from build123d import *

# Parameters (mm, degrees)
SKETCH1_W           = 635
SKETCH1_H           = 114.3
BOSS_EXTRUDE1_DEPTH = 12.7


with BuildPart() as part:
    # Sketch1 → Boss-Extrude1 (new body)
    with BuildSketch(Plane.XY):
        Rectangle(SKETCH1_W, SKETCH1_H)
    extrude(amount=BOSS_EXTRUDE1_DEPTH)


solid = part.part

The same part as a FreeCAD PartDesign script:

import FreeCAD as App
import Part
import Sketcher
from FreeCAD import Vector
Q = App.Units.Quantity


def add_polygon(sketch, points):
    """Adds a closed chain of lines whose ends are joined by coincident constraints."""
    first, n = sketch.GeometryCount, len(points)
    for a, b in zip(points, points[1:] + points[:1]):
        sketch.addGeometry(Part.LineSegment(App.Vector(*a, 0), App.Vector(*b, 0)), False)
    for i in range(n):
        sketch.addConstraint(Sketcher.Constraint("Coincident", first + i, 2, first + (i + 1) % n, 1))

doc = App.newDocument("Part")
body = doc.addObject("PartDesign::Body", "Body")

# Sketch on XY plane
sketch1 = doc.addObject("Sketcher::SketchObject", "Sketch")
body.addObject(sketch1)
sketch1.AttachmentSupport = (doc.XY_Plane, [""])
sketch1.MapMode = "FlatFace"
add_polygon(sketch1, [(-318, 57), (-318, -57), (318, -57), (318, 57)])  # lines 0-3
sketch1.addConstraint(Sketcher.Constraint("Vertical", 0))
sketch1.addConstraint(Sketcher.Constraint("Horizontal", 1))
sketch1.addConstraint(Sketcher.Constraint("Vertical", 2))
sketch1.addConstraint(Sketcher.Constraint("Horizontal", 3))
sketch1.addConstraint(Sketcher.Constraint("Symmetric", 0, 2, 2, 2, -1, 1))
sketch1.addConstraint(Sketcher.Constraint("DistanceX", 1, 1, 1, 2, Q("25 in")))
sketch1.addConstraint(Sketcher.Constraint("DistanceY", 0, 2, 0, 1, Q("4.5 in")))
pad1 = doc.addObject("PartDesign::Pad", "Pad")
body.addObject(pad1)
pad1.Profile = sketch1
pad1.Length = Q("0.5 in")

doc.recompute()
